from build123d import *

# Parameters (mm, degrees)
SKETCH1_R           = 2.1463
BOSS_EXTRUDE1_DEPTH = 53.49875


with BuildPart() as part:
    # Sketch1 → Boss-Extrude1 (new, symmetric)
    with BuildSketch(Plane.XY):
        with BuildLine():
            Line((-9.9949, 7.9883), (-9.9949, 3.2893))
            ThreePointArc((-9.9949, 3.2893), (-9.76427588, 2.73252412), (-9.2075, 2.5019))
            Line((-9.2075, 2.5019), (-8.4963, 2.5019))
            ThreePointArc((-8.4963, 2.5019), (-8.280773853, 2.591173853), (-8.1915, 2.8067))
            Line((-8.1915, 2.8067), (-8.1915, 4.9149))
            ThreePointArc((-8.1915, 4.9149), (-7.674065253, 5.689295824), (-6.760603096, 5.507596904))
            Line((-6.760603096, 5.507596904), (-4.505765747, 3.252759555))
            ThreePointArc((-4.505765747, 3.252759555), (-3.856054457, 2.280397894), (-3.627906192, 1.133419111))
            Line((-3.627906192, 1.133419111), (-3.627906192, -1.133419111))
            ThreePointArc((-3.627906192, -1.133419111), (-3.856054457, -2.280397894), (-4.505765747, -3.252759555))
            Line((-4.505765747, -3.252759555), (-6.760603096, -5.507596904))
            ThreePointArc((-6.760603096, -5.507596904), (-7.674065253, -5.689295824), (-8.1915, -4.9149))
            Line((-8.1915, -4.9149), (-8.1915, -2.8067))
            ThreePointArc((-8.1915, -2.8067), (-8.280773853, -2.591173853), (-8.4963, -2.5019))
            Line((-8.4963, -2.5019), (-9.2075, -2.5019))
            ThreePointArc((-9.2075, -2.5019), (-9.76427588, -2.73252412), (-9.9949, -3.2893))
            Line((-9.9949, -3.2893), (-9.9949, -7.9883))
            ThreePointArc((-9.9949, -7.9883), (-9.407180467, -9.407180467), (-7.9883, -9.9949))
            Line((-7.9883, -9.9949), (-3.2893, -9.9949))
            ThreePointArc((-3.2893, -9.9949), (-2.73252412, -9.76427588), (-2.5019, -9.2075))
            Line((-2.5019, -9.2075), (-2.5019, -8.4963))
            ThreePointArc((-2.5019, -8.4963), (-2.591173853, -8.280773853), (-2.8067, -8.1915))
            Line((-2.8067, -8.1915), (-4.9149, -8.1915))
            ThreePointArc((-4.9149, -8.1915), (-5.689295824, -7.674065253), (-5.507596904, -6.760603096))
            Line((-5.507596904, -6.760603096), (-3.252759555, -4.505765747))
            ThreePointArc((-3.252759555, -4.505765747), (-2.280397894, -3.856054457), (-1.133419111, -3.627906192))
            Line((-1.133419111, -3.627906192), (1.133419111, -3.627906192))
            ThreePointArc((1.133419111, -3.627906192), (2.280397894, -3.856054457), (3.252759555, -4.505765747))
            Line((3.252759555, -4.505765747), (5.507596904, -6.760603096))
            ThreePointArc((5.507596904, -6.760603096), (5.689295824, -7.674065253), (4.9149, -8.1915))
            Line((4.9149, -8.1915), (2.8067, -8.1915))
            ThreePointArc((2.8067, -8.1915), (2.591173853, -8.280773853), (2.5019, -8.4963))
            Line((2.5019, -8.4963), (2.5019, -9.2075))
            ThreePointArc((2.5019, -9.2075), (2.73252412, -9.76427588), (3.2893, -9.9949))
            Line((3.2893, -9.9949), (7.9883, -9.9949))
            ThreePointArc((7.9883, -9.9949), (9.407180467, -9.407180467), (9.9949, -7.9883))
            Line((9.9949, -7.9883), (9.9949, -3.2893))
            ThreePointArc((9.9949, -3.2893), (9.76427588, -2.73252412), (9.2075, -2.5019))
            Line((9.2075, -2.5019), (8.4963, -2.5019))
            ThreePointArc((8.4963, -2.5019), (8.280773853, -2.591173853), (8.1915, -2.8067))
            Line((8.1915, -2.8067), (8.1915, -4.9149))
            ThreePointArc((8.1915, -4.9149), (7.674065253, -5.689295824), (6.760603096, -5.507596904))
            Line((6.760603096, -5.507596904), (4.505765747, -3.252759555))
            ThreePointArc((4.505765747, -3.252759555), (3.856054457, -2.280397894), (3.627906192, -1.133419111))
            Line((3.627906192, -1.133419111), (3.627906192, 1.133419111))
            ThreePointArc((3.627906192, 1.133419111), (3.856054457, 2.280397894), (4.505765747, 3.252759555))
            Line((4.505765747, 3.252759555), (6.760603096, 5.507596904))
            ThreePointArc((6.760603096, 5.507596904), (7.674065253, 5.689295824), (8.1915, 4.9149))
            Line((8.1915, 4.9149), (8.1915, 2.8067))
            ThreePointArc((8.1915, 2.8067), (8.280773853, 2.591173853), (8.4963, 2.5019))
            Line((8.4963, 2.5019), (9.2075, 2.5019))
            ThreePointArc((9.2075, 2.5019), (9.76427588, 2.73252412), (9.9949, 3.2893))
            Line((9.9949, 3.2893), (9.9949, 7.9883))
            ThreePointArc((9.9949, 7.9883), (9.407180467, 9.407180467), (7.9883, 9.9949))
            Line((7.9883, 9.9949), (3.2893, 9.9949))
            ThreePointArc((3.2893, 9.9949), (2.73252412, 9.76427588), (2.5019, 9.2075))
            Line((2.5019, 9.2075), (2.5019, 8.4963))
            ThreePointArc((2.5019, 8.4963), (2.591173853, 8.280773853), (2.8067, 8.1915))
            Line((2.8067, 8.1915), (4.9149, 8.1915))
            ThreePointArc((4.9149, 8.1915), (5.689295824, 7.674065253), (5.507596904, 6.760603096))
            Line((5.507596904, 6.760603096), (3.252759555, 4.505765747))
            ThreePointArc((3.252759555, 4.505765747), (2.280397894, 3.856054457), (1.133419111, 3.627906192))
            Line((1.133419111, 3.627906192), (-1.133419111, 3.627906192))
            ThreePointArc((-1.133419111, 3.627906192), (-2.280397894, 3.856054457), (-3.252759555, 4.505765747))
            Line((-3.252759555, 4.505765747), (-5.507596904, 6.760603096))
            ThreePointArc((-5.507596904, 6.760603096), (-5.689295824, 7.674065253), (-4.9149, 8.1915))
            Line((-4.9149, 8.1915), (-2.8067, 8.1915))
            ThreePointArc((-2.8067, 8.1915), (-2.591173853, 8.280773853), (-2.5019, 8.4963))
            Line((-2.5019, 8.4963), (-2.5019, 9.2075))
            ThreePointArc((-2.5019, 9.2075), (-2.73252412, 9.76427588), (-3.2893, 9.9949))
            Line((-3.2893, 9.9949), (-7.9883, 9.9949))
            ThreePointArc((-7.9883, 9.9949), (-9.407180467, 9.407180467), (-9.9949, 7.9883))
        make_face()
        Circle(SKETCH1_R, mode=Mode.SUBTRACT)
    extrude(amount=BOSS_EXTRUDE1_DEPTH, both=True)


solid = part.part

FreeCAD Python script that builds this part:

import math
import FreeCAD as App
import Part
import Sketcher
Q = App.Units.Quantity

doc = App.newDocument("Part")
params = doc.addObject("Spreadsheet::Sheet", "Params")
for row, (alias, value) in enumerate([
    ("sketch1_diameter", "0.169 in"),
    ("sketch1_radius", "0.031 in"),
    ("sketch1_radius2", "0.012 in"),
    ("sketch1_radius3", "0.033 in"),
    ("sketch1_radius4", "0.118 in"),
    ("pad1_length", "4.2125 in"),
], start=1):
    params.set(f"A{row}", alias)
    params.set(f"B{row}", "=" + value)
    params.setAlias(f"B{row}", alias)

body = doc.addObject("PartDesign::Body", "Body")

# Sketch on XY plane
sketch1 = body.newObject("Sketcher::SketchObject", "Sketch")
sketch1.AttachmentSupport = (doc.getObject("XY_Plane"), [""])
sketch1.MapMode = "FlatFace"
sketch1.addGeometry([
    Part.LineSegment(App.Vector(-9.99, 7.99, 0), App.Vector(-9.99, 3.29, 0)),  # 0
    Part.ArcOfCircle(Part.Circle(App.Vector(-9.21, 3.29, 0), App.Vector(0, 0, 1), 0.79), math.radians(180), math.radians(270)),  # 1
    Part.LineSegment(App.Vector(-9.21, 2.5, 0), App.Vector(-8.5, 2.5, 0)),  # 2
    Part.ArcOfCircle(Part.Circle(App.Vector(-8.5, 2.81, 0), App.Vector(0, 0, 1), 0.3), math.radians(-90), math.radians(0)),  # 3
    Part.LineSegment(App.Vector(-8.19, 2.81, 0), App.Vector(-8.19, 4.91, 0)),  # 4
    Part.ArcOfCircle(Part.Circle(App.Vector(-7.35, 4.91, 0), App.Vector(0, 0, 1), 0.84), math.radians(45), math.radians(180)),  # 5
    Part.LineSegment(App.Vector(-6.76, 5.51, 0), App.Vector(-4.51, 3.25, 0)),  # 6
    Part.ArcOfCircle(Part.Circle(App.Vector(-6.63, 1.13, 0), App.Vector(0, 0, 1), 3), math.radians(0), math.radians(45)),  # 7
    Part.LineSegment(App.Vector(-3.63, 1.13, 0), App.Vector(-3.63, -1.13, 0)),  # 8
    Part.ArcOfCircle(Part.Circle(App.Vector(-6.63, -1.13, 0), App.Vector(0, 0, 1), 3), math.radians(-45), math.radians(0)),  # 9
    Part.LineSegment(App.Vector(-4.51, -3.25, 0), App.Vector(-6.76, -5.51, 0)),  # 10
    Part.ArcOfCircle(Part.Circle(App.Vector(-7.35, -4.91, 0), App.Vector(0, 0, 1), 0.84), math.radians(180), math.radians(315)),  # 11
    Part.LineSegment(App.Vector(-8.19, -4.91, 0), App.Vector(-8.19, -2.81, 0)),  # 12
    Part.ArcOfCircle(Part.Circle(App.Vector(-8.5, -2.81, 0), App.Vector(0, 0, 1), 0.3), math.radians(0), math.radians(90)),  # 13
    Part.LineSegment(App.Vector(-8.5, -2.5, 0), App.Vector(-9.21, -2.5, 0)),  # 14
    Part.ArcOfCircle(Part.Circle(App.Vector(-9.21, -3.29, 0), App.Vector(0, 0, 1), 0.79), math.radians(90), math.radians(180)),  # 15
    Part.LineSegment(App.Vector(-9.99, -3.29, 0), App.Vector(-9.99, -7.99, 0)),  # 16
    Part.ArcOfCircle(Part.Circle(App.Vector(-7.99, -7.99, 0), App.Vector(0, 0, 1), 2.01), math.radians(180), math.radians(270)),  # 17
    Part.LineSegment(App.Vector(-7.99, -9.99, 0), App.Vector(-3.29, -9.99, 0)),  # 18
    Part.ArcOfCircle(Part.Circle(App.Vector(-3.29, -9.21, 0), App.Vector(0, 0, 1), 0.79), math.radians(-90), math.radians(0)),  # 19
    Part.LineSegment(App.Vector(-2.5, -9.21, 0), App.Vector(-2.5, -8.5, 0)),  # 20
    Part.ArcOfCircle(Part.Circle(App.Vector(-2.81, -8.5, 0), App.Vector(0, 0, 1), 0.3), math.radians(0), math.radians(90)),  # 21
    Part.LineSegment(App.Vector(-2.81, -8.19, 0), App.Vector(-4.91, -8.19, 0)),  # 22
    Part.ArcOfCircle(Part.Circle(App.Vector(-4.91, -7.35, 0), App.Vector(0, 0, 1), 0.84), math.radians(135), math.radians(270)),  # 23
    Part.LineSegment(App.Vector(-5.51, -6.76, 0), App.Vector(-3.25, -4.51, 0)),  # 24
    Part.ArcOfCircle(Part.Circle(App.Vector(-1.13, -6.63, 0), App.Vector(0, 0, 1), 3), math.radians(90), math.radians(135)),  # 25
    Part.LineSegment(App.Vector(-1.13, -3.63, 0), App.Vector(1.13, -3.63, 0)),  # 26
    Part.ArcOfCircle(Part.Circle(App.Vector(1.13, -6.63, 0), App.Vector(0, 0, 1), 3), math.radians(45), math.radians(90)),  # 27
    Part.LineSegment(App.Vector(3.25, -4.51, 0), App.Vector(5.51, -6.76, 0)),  # 28
    Part.ArcOfCircle(Part.Circle(App.Vector(4.91, -7.35, 0), App.Vector(0, 0, 1), 0.84), math.radians(-90), math.radians(45)),  # 29
    Part.LineSegment(App.Vector(4.91, -8.19, 0), App.Vector(2.81, -8.19, 0)),  # 30
    Part.ArcOfCircle(Part.Circle(App.Vector(2.81, -8.5, 0), App.Vector(0, 0, 1), 0.3), math.radians(90), math.radians(180)),  # 31
    Part.LineSegment(App.Vector(2.5, -8.5, 0), App.Vector(2.5, -9.21, 0)),  # 32
    Part.ArcOfCircle(Part.Circle(App.Vector(3.29, -9.21, 0), App.Vector(0, 0, 1), 0.79), math.radians(180), math.radians(270)),  # 33
    Part.LineSegment(App.Vector(3.29, -9.99, 0), App.Vector(7.99, -9.99, 0)),  # 34
    Part.ArcOfCircle(Part.Circle(App.Vector(7.99, -7.99, 0), App.Vector(0, 0, 1), 2.01), math.radians(-90), math.radians(0)),  # 35
    Part.LineSegment(App.Vector(9.99, -7.99, 0), App.Vector(9.99, -3.29, 0)),  # 36
    Part.ArcOfCircle(Part.Circle(App.Vector(9.21, -3.29, 0), App.Vector(0, 0, 1), 0.79), math.radians(0), math.radians(90)),  # 37
    Part.LineSegment(App.Vector(9.21, -2.5, 0), App.Vector(8.5, -2.5, 0)),  # 38
    Part.ArcOfCircle(Part.Circle(App.Vector(8.5, -2.81, 0), App.Vector(0, 0, 1), 0.3), math.radians(90), math.radians(180)),  # 39
    Part.LineSegment(App.Vector(8.19, -2.81, 0), App.Vector(8.19, -4.91, 0)),  # 40
    Part.ArcOfCircle(Part.Circle(App.Vector(7.35, -4.91, 0), App.Vector(0, 0, 1), 0.84), math.radians(-135), math.radians(0)),  # 41
    Part.LineSegment(App.Vector(6.76, -5.51, 0), App.Vector(4.51, -3.25, 0)),  # 42
    Part.ArcOfCircle(Part.Circle(App.Vector(6.63, -1.13, 0), App.Vector(0, 0, 1), 3), math.radians(180), math.radians(225)),  # 43
    Part.LineSegment(App.Vector(3.63, -1.13, 0), App.Vector(3.63, 1.13, 0)),  # 44
    Part.ArcOfCircle(Part.Circle(App.Vector(6.63, 1.13, 0), App.Vector(0, 0, 1), 3), math.radians(135), math.radians(180)),  # 45
    Part.LineSegment(App.Vector(4.51, 3.25, 0), App.Vector(6.76, 5.51, 0)),  # 46
    Part.ArcOfCircle(Part.Circle(App.Vector(7.35, 4.91, 0), App.Vector(0, 0, 1), 0.84), math.radians(0), math.radians(135)),  # 47
    Part.LineSegment(App.Vector(8.19, 4.91, 0), App.Vector(8.19, 2.81, 0)),  # 48
    Part.ArcOfCircle(Part.Circle(App.Vector(8.5, 2.81, 0), App.Vector(0, 0, 1), 0.3), math.radians(180), math.radians(270)),  # 49
    Part.LineSegment(App.Vector(8.5, 2.5, 0), App.Vector(9.21, 2.5, 0)),  # 50
    Part.ArcOfCircle(Part.Circle(App.Vector(9.21, 3.29, 0), App.Vector(0, 0, 1), 0.79), math.radians(-90), math.radians(0)),  # 51
    Part.LineSegment(App.Vector(9.99, 3.29, 0), App.Vector(9.99, 7.99, 0)),  # 52
    Part.ArcOfCircle(Part.Circle(App.Vector(7.99, 7.99, 0), App.Vector(0, 0, 1), 2.01), math.radians(0), math.radians(90)),  # 53
    Part.LineSegment(App.Vector(7.99, 9.99, 0), App.Vector(3.29, 9.99, 0)),  # 54
    Part.ArcOfCircle(Part.Circle(App.Vector(3.29, 9.21, 0), App.Vector(0, 0, 1), 0.79), math.radians(90), math.radians(180)),  # 55
    Part.LineSegment(App.Vector(2.5, 9.21, 0), App.Vector(2.5, 8.5, 0)),  # 56
    Part.ArcOfCircle(Part.Circle(App.Vector(2.81, 8.5, 0), App.Vector(0, 0, 1), 0.3), math.radians(180), math.radians(270)),  # 57
    Part.LineSegment(App.Vector(2.81, 8.19, 0), App.Vector(4.91, 8.19, 0)),  # 58
    Part.ArcOfCircle(Part.Circle(App.Vector(4.91, 7.35, 0), App.Vector(0, 0, 1), 0.84), math.radians(-45), math.radians(90)),  # 59
    Part.LineSegment(App.Vector(5.51, 6.76, 0), App.Vector(3.25, 4.51, 0)),  # 60
    Part.ArcOfCircle(Part.Circle(App.Vector(1.13, 6.63, 0), App.Vector(0, 0, 1), 3), math.radians(-90), math.radians(-45)),  # 61
    Part.LineSegment(App.Vector(1.13, 3.63, 0), App.Vector(-1.13, 3.63, 0)),  # 62
    Part.ArcOfCircle(Part.Circle(App.Vector(-1.13, 6.63, 0), App.Vector(0, 0, 1), 3), math.radians(-135), math.radians(-90)),  # 63
    Part.LineSegment(App.Vector(-3.25, 4.51, 0), App.Vector(-5.51, 6.76, 0)),  # 64
    Part.ArcOfCircle(Part.Circle(App.Vector(-4.91, 7.35, 0), App.Vector(0, 0, 1), 0.84), math.radians(90), math.radians(225)),  # 65
    Part.LineSegment(App.Vector(-4.91, 8.19, 0), App.Vector(-2.81, 8.19, 0)),  # 66
    Part.ArcOfCircle(Part.Circle(App.Vector(-2.81, 8.5, 0), App.Vector(0, 0, 1), 0.3), math.radians(-90), math.radians(0)),  # 67
    Part.LineSegment(App.Vector(-2.5, 8.5, 0), App.Vector(-2.5, 9.21, 0)),  # 68
    Part.ArcOfCircle(Part.Circle(App.Vector(-3.29, 9.21, 0), App.Vector(0, 0, 1), 0.79), math.radians(0), math.radians(90)),  # 69
    Part.LineSegment(App.Vector(-3.29, 9.99, 0), App.Vector(-7.99, 9.99, 0)),  # 70
    Part.ArcOfCircle(Part.Circle(App.Vector(-7.99, 7.99, 0), App.Vector(0, 0, 1), 2.01), math.radians(90), math.radians(180)),  # 71
    Part.Circle(App.Vector(0, 0, 0), App.Vector(0, 0, 1), 2.15),  # 72
], False)
sketch1.addConstraint([
    Sketcher.Constraint("Tangent", 0, 2, 1, 1),
    Sketcher.Constraint("Tangent", 1, 2, 2, 1),
    Sketcher.Constraint("Tangent", 2, 2, 3, 1),
    Sketcher.Constraint("Tangent", 3, 2, 4, 1),
    Sketcher.Constraint("Tangent", 4, 2, 5, 2),
    Sketcher.Constraint("Tangent", 5, 1, 6, 1),
    Sketcher.Constraint("Tangent", 6, 2, 7, 2),
    Sketcher.Constraint("Tangent", 7, 1, 8, 1),
    Sketcher.Constraint("Tangent", 8, 2, 9, 2),
    Sketcher.Constraint("Tangent", 9, 1, 10, 1),
    Sketcher.Constraint("Tangent", 10, 2, 11, 2),
    Sketcher.Constraint("Tangent", 11, 1, 12, 1),
    Sketcher.Constraint("Tangent", 12, 2, 13, 1),
    Sketcher.Constraint("Tangent", 13, 2, 14, 1),
    Sketcher.Constraint("Tangent", 14, 2, 15, 1),
    Sketcher.Constraint("Tangent", 15, 2, 16, 1),
    Sketcher.Constraint("Tangent", 16, 2, 17, 1),
    Sketcher.Constraint("Tangent", 17, 2, 18, 1),
    Sketcher.Constraint("Tangent", 18, 2, 19, 1),
    Sketcher.Constraint("Tangent", 19, 2, 20, 1),
    Sketcher.Constraint("Tangent", 20, 2, 21, 1),
    Sketcher.Constraint("Tangent", 21, 2, 22, 1),
    Sketcher.Constraint("Tangent", 22, 2, 23, 2),
    Sketcher.Constraint("Tangent", 23, 1, 24, 1),
    Sketcher.Constraint("Tangent", 24, 2, 25, 2),
    Sketcher.Constraint("Tangent", 25, 1, 26, 1),
    Sketcher.Constraint("Tangent", 26, 2, 27, 2),
    Sketcher.Constraint("Tangent", 27, 1, 28, 1),
    Sketcher.Constraint("Tangent", 28, 2, 29, 2),
    Sketcher.Constraint("Tangent", 29, 1, 30, 1),
    Sketcher.Constraint("Tangent", 30, 2, 31, 1),
    Sketcher.Constraint("Tangent", 31, 2, 32, 1),
    Sketcher.Constraint("Tangent", 32, 2, 33, 1),
    Sketcher.Constraint("Tangent", 33, 2, 34, 1),
    Sketcher.Constraint("Tangent", 34, 2, 35, 1),
    Sketcher.Constraint("Tangent", 35, 2, 36, 1),
    Sketcher.Constraint("Tangent", 36, 2, 37, 1),
    Sketcher.Constraint("Tangent", 37, 2, 38, 1),
    Sketcher.Constraint("Tangent", 38, 2, 39, 1),
    Sketcher.Constraint("Tangent", 39, 2, 40, 1),
    Sketcher.Constraint("Tangent", 40, 2, 41, 2),
    Sketcher.Constraint("Tangent", 41, 1, 42, 1),
    Sketcher.Constraint("Tangent", 42, 2, 43, 2),
    Sketcher.Constraint("Tangent", 43, 1, 44, 1),
    Sketcher.Constraint("Tangent", 44, 2, 45, 2),
    Sketcher.Constraint("Tangent", 45, 1, 46, 1),
    Sketcher.Constraint("Tangent", 46, 2, 47, 2),
    Sketcher.Constraint("Tangent", 47, 1, 48, 1),
    Sketcher.Constraint("Tangent", 48, 2, 49, 1),
    Sketcher.Constraint("Tangent", 49, 2, 50, 1),
    Sketcher.Constraint("Tangent", 50, 2, 51, 1),
    Sketcher.Constraint("Tangent", 51, 2, 52, 1),
    Sketcher.Constraint("Tangent", 52, 2, 53, 1),
    Sketcher.Constraint("Tangent", 53, 2, 54, 1),
    Sketcher.Constraint("Tangent", 54, 2, 55, 1),
    Sketcher.Constraint("Tangent", 55, 2, 56, 1),
    Sketcher.Constraint("Tangent", 56, 2, 57, 1),
    Sketcher.Constraint("Tangent", 57, 2, 58, 1),
    Sketcher.Constraint("Tangent", 58, 2, 59, 2),
    Sketcher.Constraint("Tangent", 59, 1, 60, 1),
    Sketcher.Constraint("Tangent", 60, 2, 61, 2),
    Sketcher.Constraint("Tangent", 61, 1, 62, 1),
    Sketcher.Constraint("Tangent", 62, 2, 63, 2),
    Sketcher.Constraint("Tangent", 63, 1, 64, 1),
    Sketcher.Constraint("Tangent", 64, 2, 65, 2),
    Sketcher.Constraint("Tangent", 65, 1, 66, 1),
    Sketcher.Constraint("Tangent", 66, 2, 67, 1),
    Sketcher.Constraint("Tangent", 67, 2, 68, 1),
    Sketcher.Constraint("Tangent", 68, 2, 69, 1),
    Sketcher.Constraint("Tangent", 69, 2, 70, 1),
    Sketcher.Constraint("Tangent", 70, 2, 71, 1),
    Sketcher.Constraint("Tangent", 71, 2, 0, 1),
    Sketcher.Constraint("Vertical", 0),
    Sketcher.Constraint("Horizontal", 2),
    Sketcher.Constraint("Vertical", 4),
    Sketcher.Constraint("Vertical", 8),
    Sketcher.Constraint("Vertical", 12),
    Sketcher.Constraint("Horizontal", 14),
    Sketcher.Constraint("Vertical", 16),
    Sketcher.Constraint("Horizontal", 18),
    Sketcher.Constraint("Vertical", 20),
    Sketcher.Constraint("Horizontal", 22),
    Sketcher.Constraint("Horizontal", 26),
    Sketcher.Constraint("Horizontal", 30),
    Sketcher.Constraint("Vertical", 32),
    Sketcher.Constraint("Horizontal", 34),
    Sketcher.Constraint("Vertical", 36),
    Sketcher.Constraint("Horizontal", 38),
    Sketcher.Constraint("Vertical", 40),
    Sketcher.Constraint("Vertical", 44),
    Sketcher.Constraint("Vertical", 48),
    Sketcher.Constraint("Horizontal", 50),
    Sketcher.Constraint("Vertical", 52),
    Sketcher.Constraint("Horizontal", 54),
    Sketcher.Constraint("Vertical", 56),
    Sketcher.Constraint("Horizontal", 58),
    Sketcher.Constraint("Horizontal", 62),
    Sketcher.Constraint("Horizontal", 66),
    Sketcher.Constraint("Vertical", 68),
    Sketcher.Constraint("Horizontal", 70),
    Sketcher.Constraint("Coincident", 72, 3, -1, 1),
    Sketcher.Constraint("Equal", 7, 9),
    Sketcher.Constraint("Equal", 5, 11),
    Sketcher.Constraint("Equal", 3, 13),
    Sketcher.Constraint("Equal", 1, 15),
    Sketcher.Constraint("Equal", 15, 19),
    Sketcher.Constraint("Equal", 13, 21),
    Sketcher.Constraint("Equal", 11, 23),
    Sketcher.Constraint("Equal", 9, 25),
    Sketcher.Constraint("Equal", 25, 27),
    Sketcher.Constraint("Equal", 23, 29),
    Sketcher.Constraint("Equal", 21, 31),
    Sketcher.Constraint("Equal", 19, 33),
    Sketcher.Constraint("Equal", 17, 35),
    Sketcher.Constraint("Equal", 33, 37),
    Sketcher.Constraint("Equal", 31, 39),
    Sketcher.Constraint("Equal", 29, 41),
    Sketcher.Constraint("Equal", 27, 43),
    Sketcher.Constraint("Equal", 43, 45),
    Sketcher.Constraint("Equal", 41, 47),
    Sketcher.Constraint("Equal", 39, 49),
    Sketcher.Constraint("Equal", 37, 51),
    Sketcher.Constraint("Equal", 35, 53),
    Sketcher.Constraint("Equal", 51, 55),
    Sketcher.Constraint("Equal", 49, 57),
    Sketcher.Constraint("Equal", 47, 59),
    Sketcher.Constraint("Equal", 45, 61),
    Sketcher.Constraint("Equal", 61, 63),
    Sketcher.Constraint("Equal", 59, 65),
    Sketcher.Constraint("Equal", 57, 67),
    Sketcher.Constraint("Equal", 55, 69),
    Sketcher.Constraint("Equal", 53, 71),
    Sketcher.Constraint("Symmetric", 1, 3, 37, 3, -1, 1),
    Sketcher.Constraint("Symmetric", 5, 3, 41, 3, -1, 1),
    Sketcher.Constraint("Symmetric", 7, 3, 43, 3, -1, 1),
    Sketcher.Constraint("Symmetric", 11, 3, 47, 3, -1, 1),
    Sketcher.Constraint("Symmetric", 15, 3, 51, 3, -1, 1),
    Sketcher.Constraint("Symmetric", 19, 3, 55, 3, -1, 1),
    Sketcher.Constraint("Symmetric", 23, 3, 59, 3, -1, 1),
    Sketcher.Constraint("Symmetric", 25, 3, 61, 3, -1, 1),
    Sketcher.Constraint("Symmetric", 29, 3, 65, 3, -1, 1),
    Sketcher.Constraint("Symmetric", 33, 3, 69, 3, -1, 1),
    Sketcher.Constraint("Symmetric", 23, 3, 29, 3, -2),
    Sketcher.Constraint("Symmetric", 19, 3, 33, 3, -2),
    Sketcher.Constraint("Symmetric", 15, 3, 37, 3, -2),
    Sketcher.Constraint("Symmetric", 11, 3, 41, 3, -2),
    Sketcher.Constraint("Perpendicular", 6, 10),
    Sketcher.Constraint("Parallel", 10, 24),
    Sketcher.Constraint("Perpendicular", 24, 28),
    Sketcher.Constraint("Perpendicular", 42, 46),
    Sketcher.Constraint("Perpendicular", 60, 64),
    Sketcher.Constraint("Horizontal", 9, 3, 43, 3),
    Sketcher.Constraint("Equal", 70, 0),
    Sketcher.Constraint("Equal", 66, 4),
    Sketcher.Constraint("Equal", 62, 8),
    Sketcher.Constraint("Equal", 50, 20),
    Sketcher.Constraint("Equal", 10, 24),
    Sketcher.Constraint("Diameter", 72, Q("0.169 in")),
    Sketcher.Constraint("Radius", 1, Q("0.031 in")),
    Sketcher.Constraint("Radius", 3, Q("0.012 in")),
    Sketcher.Constraint("Radius", 5, Q("0.033 in")),
    Sketcher.Constraint("Radius", 7, Q("0.118 in")),
    Sketcher.Constraint("Radius", 17, Q("0.079 in")),
    Sketcher.Constraint("DistanceX", 2, 1, 2, 2, Q("0.028 in")),
    Sketcher.Constraint("DistanceX", 18, 1, 18, 2, Q("0.185 in")),
    Sketcher.Constraint("DistanceX", 22, 2, 22, 1, Q("0.083 in")),
    Sketcher.Constraint("DistanceX", 1, 3, -1, 1, Q("0.3625 in")),
    Sketcher.Constraint("DistanceX", 26, 1, 26, 2, Q("2.266838 mm")),
])
sketch1.setExpression("Constraints[157]", "Params.sketch1_diameter")
sketch1.setExpression("Constraints[158]", "Params.sketch1_radius")
sketch1.setExpression("Constraints[159]", "Params.sketch1_radius2")
sketch1.setExpression("Constraints[160]", "Params.sketch1_radius3")
sketch1.setExpression("Constraints[161]", "Params.sketch1_radius4")
pad1 = body.newObject("PartDesign::Pad", "Pad")
pad1.Profile = sketch1
pad1.setExpression("Length", "Params.pad1_length")
pad1.Midplane = True

doc.recompute()
